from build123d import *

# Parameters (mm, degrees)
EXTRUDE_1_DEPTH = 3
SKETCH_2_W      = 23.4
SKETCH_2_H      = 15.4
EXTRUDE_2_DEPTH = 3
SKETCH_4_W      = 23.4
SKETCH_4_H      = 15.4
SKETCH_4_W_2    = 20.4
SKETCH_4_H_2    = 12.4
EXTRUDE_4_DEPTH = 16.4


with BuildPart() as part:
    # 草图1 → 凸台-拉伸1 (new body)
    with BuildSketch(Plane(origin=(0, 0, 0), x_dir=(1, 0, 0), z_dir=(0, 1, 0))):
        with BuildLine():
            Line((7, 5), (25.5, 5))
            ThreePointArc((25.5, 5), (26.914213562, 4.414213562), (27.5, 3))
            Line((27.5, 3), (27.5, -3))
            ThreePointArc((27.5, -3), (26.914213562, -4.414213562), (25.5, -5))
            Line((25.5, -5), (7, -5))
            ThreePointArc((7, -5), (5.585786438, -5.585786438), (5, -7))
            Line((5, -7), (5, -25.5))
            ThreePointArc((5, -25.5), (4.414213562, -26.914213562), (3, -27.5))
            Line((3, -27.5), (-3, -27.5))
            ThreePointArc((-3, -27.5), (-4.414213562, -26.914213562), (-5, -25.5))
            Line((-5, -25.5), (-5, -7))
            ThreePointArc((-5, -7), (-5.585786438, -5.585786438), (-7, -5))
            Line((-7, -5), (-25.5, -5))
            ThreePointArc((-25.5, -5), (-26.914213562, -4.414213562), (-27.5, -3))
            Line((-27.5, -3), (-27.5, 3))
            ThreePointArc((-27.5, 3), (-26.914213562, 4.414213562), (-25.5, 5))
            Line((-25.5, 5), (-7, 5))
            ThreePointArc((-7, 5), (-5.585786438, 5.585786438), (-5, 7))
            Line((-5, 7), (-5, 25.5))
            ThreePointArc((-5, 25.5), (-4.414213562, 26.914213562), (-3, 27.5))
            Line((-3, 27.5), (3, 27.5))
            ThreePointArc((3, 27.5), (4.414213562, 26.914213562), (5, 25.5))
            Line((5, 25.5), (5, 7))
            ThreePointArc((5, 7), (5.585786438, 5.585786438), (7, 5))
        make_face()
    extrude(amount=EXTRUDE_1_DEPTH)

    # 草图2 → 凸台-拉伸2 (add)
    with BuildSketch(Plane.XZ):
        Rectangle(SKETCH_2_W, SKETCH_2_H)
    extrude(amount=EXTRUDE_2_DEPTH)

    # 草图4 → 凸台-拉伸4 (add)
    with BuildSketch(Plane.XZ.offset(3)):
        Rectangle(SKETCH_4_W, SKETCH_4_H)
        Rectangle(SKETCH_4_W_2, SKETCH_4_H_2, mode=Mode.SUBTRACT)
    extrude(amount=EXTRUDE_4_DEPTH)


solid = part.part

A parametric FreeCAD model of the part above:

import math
import FreeCAD as App
import Part
import Sketcher

V = App.Vector


def add_polygon(sketch, points):
    """Adds a closed chain of lines whose ends are joined by coincident constraints."""
    first, n = sketch.GeometryCount, len(points)
    for a, b in zip(points, points[1:] + points[:1]):
        sketch.addGeometry(Part.LineSegment(App.Vector(*a, 0), App.Vector(*b, 0)), False)
    for i in range(n):
        sketch.addConstraint(Sketcher.Constraint("Coincident", first + i, 2, first + (i + 1) % n, 1))

doc = App.newDocument("Part")
body = doc.addObject("PartDesign::Body", "Body")

# Sketch on XZ plane
sketch1 = body.newObject("Sketcher::SketchObject", "Sketch")
sketch1.AttachmentSupport = (doc.getObject("XZ_Plane"), [""])
sketch1.MapMode = "FlatFace"
sketch1.addGeometry(Part.LineSegment(V(25.5, -5, 0), V(7, -5, 0)), False)
sketch1.addGeometry(Part.ArcOfCircle(Part.Circle(V(7, -7, 0), V(0, 0, 1), 2), math.radians(90), math.radians(180)), False)
sketch1.addGeometry(Part.LineSegment(V(5, -7, 0), V(5, -25.5, 0)), False)
sketch1.addGeometry(Part.ArcOfCircle(Part.Circle(V(3, -25.5, 0), V(0, 0, 1), 2), math.radians(-90), math.radians(0)), False)
sketch1.addGeometry(Part.LineSegment(V(3, -27.5, 0), V(-3, -27.5, 0)), False)
sketch1.addGeometry(Part.ArcOfCircle(Part.Circle(V(-3, -25.5, 0), V(0, 0, 1), 2), math.radians(-180), math.radians(-90)), False)
sketch1.addGeometry(Part.LineSegment(V(-5, -25.5, 0), V(-5, -7, 0)), False)
sketch1.addGeometry(Part.ArcOfCircle(Part.Circle(V(-7, -7, 0), V(0, 0, 1), 2), math.radians(0), math.radians(90)), False)
sketch1.addGeometry(Part.LineSegment(V(-7, -5, 0), V(-25.5, -5, 0)), False)
sketch1.addGeometry(Part.ArcOfCircle(Part.Circle(V(-25.5, -3, 0), V(0, 0, 1), 2), math.radians(-180), math.radians(-90)), False)
sketch1.addGeometry(Part.LineSegment(V(-27.5, -3, 0), V(-27.5, 3, 0)), False)
sketch1.addGeometry(Part.ArcOfCircle(Part.Circle(V(-25.5, 3, 0), V(0, 0, 1), 2), math.radians(90), math.radians(180)), False)
sketch1.addGeometry(Part.LineSegment(V(-25.5, 5, 0), V(-7, 5, 0)), False)
sketch1.addGeometry(Part.ArcOfCircle(Part.Circle(V(-7, 7, 0), V(0, 0, 1), 2), math.radians(-90), math.radians(0)), False)
sketch1.addGeometry(Part.LineSegment(V(-5, 7, 0), V(-5, 25.5, 0)), False)
sketch1.addGeometry(Part.ArcOfCircle(Part.Circle(V(-3, 25.5, 0), V(0, 0, 1), 2), math.radians(90), math.radians(180)), False)
sketch1.addGeometry(Part.LineSegment(V(-3, 27.5, 0), V(3, 27.5, 0)), False)
sketch1.addGeometry(Part.ArcOfCircle(Part.Circle(V(3, 25.5, 0), V(0, 0, 1), 2), math.radians(0), math.radians(90)), False)
sketch1.addGeometry(Part.LineSegment(V(5, 25.5, 0), V(5, 7, 0)), False)
sketch1.addGeometry(Part.ArcOfCircle(Part.Circle(V(7, 7, 0), V(0, 0, 1), 2), math.radians(-180), math.radians(-90)), False)
sketch1.addGeometry(Part.LineSegment(V(7, 5, 0), V(25.5, 5, 0)), False)
sketch1.addGeometry(Part.ArcOfCircle(Part.Circle(V(25.5, 3, 0), V(0, 0, 1), 2), math.radians(0), math.radians(90)), False)
sketch1.addGeometry(Part.LineSegment(V(27.5, 3, 0), V(27.5, -3, 0)), False)
sketch1.addGeometry(Part.ArcOfCircle(Part.Circle(V(25.5, -3, 0), V(0, 0, 1), 2), math.radians(-90), math.radians(0)), False)
sketch1.addConstraint(Sketcher.Constraint("Tangent", 0, 2, 1, 1))
sketch1.addConstraint(Sketcher.Constraint("Tangent", 1, 2, 2, 1))
sketch1.addConstraint(Sketcher.Constraint("Tangent", 2, 2, 3, 2))
sketch1.addConstraint(Sketcher.Constraint("Tangent", 3, 1, 4, 1))
sketch1.addConstraint(Sketcher.Constraint("Tangent", 4, 2, 5, 2))
sketch1.addConstraint(Sketcher.Constraint("Tangent", 5, 1, 6, 1))
sketch1.addConstraint(Sketcher.Constraint("Tangent", 6, 2, 7, 1))
sketch1.addConstraint(Sketcher.Constraint("Tangent", 7, 2, 8, 1))
sketch1.addConstraint(Sketcher.Constraint("Tangent", 8, 2, 9, 2))
sketch1.addConstraint(Sketcher.Constraint("Tangent", 9, 1, 10, 1))
sketch1.addConstraint(Sketcher.Constraint("Tangent", 10, 2, 11, 2))
sketch1.addConstraint(Sketcher.Constraint("Tangent", 11, 1, 12, 1))
sketch1.addConstraint(Sketcher.Constraint("Tangent", 12, 2, 13, 1))
sketch1.addConstraint(Sketcher.Constraint("Tangent", 13, 2, 14, 1))
sketch1.addConstraint(Sketcher.Constraint("Tangent", 14, 2, 15, 2))
sketch1.addConstraint(Sketcher.Constraint("Tangent", 15, 1, 16, 1))
sketch1.addConstraint(Sketcher.Constraint("Tangent", 16, 2, 17, 2))
sketch1.addConstraint(Sketcher.Constraint("Tangent", 17, 1, 18, 1))
sketch1.addConstraint(Sketcher.Constraint("Tangent", 18, 2, 19, 1))
sketch1.addConstraint(Sketcher.Constraint("Tangent", 19, 2, 20, 1))
sketch1.addConstraint(Sketcher.Constraint("Tangent", 20, 2, 21, 2))
sketch1.addConstraint(Sketcher.Constraint("Tangent", 21, 1, 22, 1))
sketch1.addConstraint(Sketcher.Constraint("Tangent", 22, 2, 23, 2))
sketch1.addConstraint(Sketcher.Constraint("Tangent", 23, 1, 0, 1))
sketch1.addConstraint(Sketcher.Constraint("Horizontal", 0))
sketch1.addConstraint(Sketcher.Constraint("Vertical", 2))
sketch1.addConstraint(Sketcher.Constraint("Horizontal", 4))
sketch1.addConstraint(Sketcher.Constraint("Vertical", 6))
sketch1.addConstraint(Sketcher.Constraint("Horizontal", 8))
sketch1.addConstraint(Sketcher.Constraint("Vertical", 10))
sketch1.addConstraint(Sketcher.Constraint("Horizontal", 12))
sketch1.addConstraint(Sketcher.Constraint("Vertical", 14))
sketch1.addConstraint(Sketcher.Constraint("Horizontal", 16))
sketch1.addConstraint(Sketcher.Constraint("Vertical", 18))
sketch1.addConstraint(Sketcher.Constraint("Horizontal", 20))
sketch1.addConstraint(Sketcher.Constraint("Vertical", 22))
sketch1.addConstraint(Sketcher.Constraint("Equal", 1, 3))
sketch1.addConstraint(Sketcher.Constraint("Equal", 3, 5))
sketch1.addConstraint(Sketcher.Constraint("Equal", 5, 7))
sketch1.addConstraint(Sketcher.Constraint("Equal", 7, 9))
sketch1.addConstraint(Sketcher.Constraint("Equal", 9, 11))
sketch1.addConstraint(Sketcher.Constraint("Equal", 11, 13))
sketch1.addConstraint(Sketcher.Constraint("Equal", 13, 15))
sketch1.addConstraint(Sketcher.Constraint("Equal", 15, 17))
sketch1.addConstraint(Sketcher.Constraint("Equal", 17, 19))
sketch1.addConstraint(Sketcher.Constraint("Equal", 19, 21))
sketch1.addConstraint(Sketcher.Constraint("Equal", 21, 23))
sketch1.addConstraint(Sketcher.Constraint("Symmetric", 1, 3, 13, 3, -1, 1))
sketch1.addConstraint(Sketcher.Constraint("Symmetric", 5, 3, 17, 3, -1, 1))
sketch1.addConstraint(Sketcher.Constraint("Symmetric", 9, 3, 21, 3, -1, 1))
sketch1.addConstraint(Sketcher.Constraint("Symmetric", 1, 3, 7, 3, -2))
sketch1.addConstraint(Sketcher.Constraint("Equal", 20, 2))
sketch1.addConstraint(Sketcher.Constraint("Equal", 16, 10))
sketch1.addConstraint(Sketcher.Constraint("Radius", 1, 2.0))
sketch1.addConstraint(Sketcher.Constraint("DistanceX", 4, 2, 4, 1, 6.0))
sketch1.addConstraint(Sketcher.Constraint("DistanceX", 0, 2, 0, 1, 18.5))
pad1 = body.newObject("PartDesign::Pad", "Pad")
pad1.Profile = sketch1
pad1.Length = 3
pad1.Reversed = True

# Sketch on XZ plane
sketch2 = body.newObject("Sketcher::SketchObject", "Sketch001")
sketch2.AttachmentSupport = (doc.getObject("XZ_Plane"), [""])
sketch2.MapMode = "FlatFace"
add_polygon(sketch2, [(-11.7, 7.7), (-11.7, -7.7), (11.7, -7.7), (11.7, 7.7)])  # lines 0-3
sketch2.addConstraint(Sketcher.Constraint("Vertical", 0))
sketch2.addConstraint(Sketcher.Constraint("Horizontal", 1))
sketch2.addConstraint(Sketcher.Constraint("Vertical", 2))
sketch2.addConstraint(Sketcher.Constraint("Horizontal", 3))
sketch2.addConstraint(Sketcher.Constraint("Symmetric", 0, 2, 2, 2, -1, 1))
sketch2.addConstraint(Sketcher.Constraint("DistanceX", 1, 1, 1, 2, 23.4))
sketch2.addConstraint(Sketcher.Constraint("DistanceY", 0, 2, 0, 1, 15.4))
pad2 = body.newObject("PartDesign::Pad", "Pad001")
pad2.Profile = sketch2
pad2.Length = 3

# Sketch on XZ plane
sketch3 = body.newObject("Sketcher::SketchObject", "Sketch002")
sketch3.AttachmentSupport = (doc.getObject("XZ_Plane"), [""])
sketch3.MapMode = "FlatFace"
sketch3.AttachmentOffset = App.Placement(V(0, 0, 3), App.Rotation())
add_polygon(sketch3, [(-11.7, 7.7), (-11.7, -7.7), (11.7, -7.7), (11.7, 7.7)])  # lines 0-3
add_polygon(sketch3, [(10.2, -6.2), (-10.2, -6.2), (-10.2, 6.2), (10.2, 6.2)])  # lines 4-7
sketch3.addConstraint(Sketcher.Constraint("Vertical", 0))
sketch3.addConstraint(Sketcher.Constraint("Horizontal", 1))
sketch3.addConstraint(Sketcher.Constraint("Vertical", 2))
sketch3.addConstraint(Sketcher.Constraint("Horizontal", 3))
sketch3.addConstraint(Sketcher.Constraint("Horizontal", 4))
sketch3.addConstraint(Sketcher.Constraint("Vertical", 5))
sketch3.addConstraint(Sketcher.Constraint("Horizontal", 6))
sketch3.addConstraint(Sketcher.Constraint("Vertical", 7))
sketch3.addConstraint(Sketcher.Constraint("Symmetric", 0, 2, 2, 2, -1, 1))
sketch3.addConstraint(Sketcher.Constraint("Symmetric", 4, 2, 6, 2, -1, 1))
sketch3.addConstraint(Sketcher.Constraint("DistanceX", 1, 1, 1, 2, 23.4))
sketch3.addConstraint(Sketcher.Constraint("DistanceX", 4, 2, 4, 1, 20.4))
sketch3.addConstraint(Sketcher.Constraint("DistanceY", 0, 2, 0, 1, 15.4))
sketch3.addConstraint(Sketcher.Constraint("DistanceY", 5, 1, 5, 2, 12.4))
pad3 = body.newObject("PartDesign::Pad", "Pad002")
pad3.Profile = sketch3
pad3.Length = 16.4

doc.recompute()
